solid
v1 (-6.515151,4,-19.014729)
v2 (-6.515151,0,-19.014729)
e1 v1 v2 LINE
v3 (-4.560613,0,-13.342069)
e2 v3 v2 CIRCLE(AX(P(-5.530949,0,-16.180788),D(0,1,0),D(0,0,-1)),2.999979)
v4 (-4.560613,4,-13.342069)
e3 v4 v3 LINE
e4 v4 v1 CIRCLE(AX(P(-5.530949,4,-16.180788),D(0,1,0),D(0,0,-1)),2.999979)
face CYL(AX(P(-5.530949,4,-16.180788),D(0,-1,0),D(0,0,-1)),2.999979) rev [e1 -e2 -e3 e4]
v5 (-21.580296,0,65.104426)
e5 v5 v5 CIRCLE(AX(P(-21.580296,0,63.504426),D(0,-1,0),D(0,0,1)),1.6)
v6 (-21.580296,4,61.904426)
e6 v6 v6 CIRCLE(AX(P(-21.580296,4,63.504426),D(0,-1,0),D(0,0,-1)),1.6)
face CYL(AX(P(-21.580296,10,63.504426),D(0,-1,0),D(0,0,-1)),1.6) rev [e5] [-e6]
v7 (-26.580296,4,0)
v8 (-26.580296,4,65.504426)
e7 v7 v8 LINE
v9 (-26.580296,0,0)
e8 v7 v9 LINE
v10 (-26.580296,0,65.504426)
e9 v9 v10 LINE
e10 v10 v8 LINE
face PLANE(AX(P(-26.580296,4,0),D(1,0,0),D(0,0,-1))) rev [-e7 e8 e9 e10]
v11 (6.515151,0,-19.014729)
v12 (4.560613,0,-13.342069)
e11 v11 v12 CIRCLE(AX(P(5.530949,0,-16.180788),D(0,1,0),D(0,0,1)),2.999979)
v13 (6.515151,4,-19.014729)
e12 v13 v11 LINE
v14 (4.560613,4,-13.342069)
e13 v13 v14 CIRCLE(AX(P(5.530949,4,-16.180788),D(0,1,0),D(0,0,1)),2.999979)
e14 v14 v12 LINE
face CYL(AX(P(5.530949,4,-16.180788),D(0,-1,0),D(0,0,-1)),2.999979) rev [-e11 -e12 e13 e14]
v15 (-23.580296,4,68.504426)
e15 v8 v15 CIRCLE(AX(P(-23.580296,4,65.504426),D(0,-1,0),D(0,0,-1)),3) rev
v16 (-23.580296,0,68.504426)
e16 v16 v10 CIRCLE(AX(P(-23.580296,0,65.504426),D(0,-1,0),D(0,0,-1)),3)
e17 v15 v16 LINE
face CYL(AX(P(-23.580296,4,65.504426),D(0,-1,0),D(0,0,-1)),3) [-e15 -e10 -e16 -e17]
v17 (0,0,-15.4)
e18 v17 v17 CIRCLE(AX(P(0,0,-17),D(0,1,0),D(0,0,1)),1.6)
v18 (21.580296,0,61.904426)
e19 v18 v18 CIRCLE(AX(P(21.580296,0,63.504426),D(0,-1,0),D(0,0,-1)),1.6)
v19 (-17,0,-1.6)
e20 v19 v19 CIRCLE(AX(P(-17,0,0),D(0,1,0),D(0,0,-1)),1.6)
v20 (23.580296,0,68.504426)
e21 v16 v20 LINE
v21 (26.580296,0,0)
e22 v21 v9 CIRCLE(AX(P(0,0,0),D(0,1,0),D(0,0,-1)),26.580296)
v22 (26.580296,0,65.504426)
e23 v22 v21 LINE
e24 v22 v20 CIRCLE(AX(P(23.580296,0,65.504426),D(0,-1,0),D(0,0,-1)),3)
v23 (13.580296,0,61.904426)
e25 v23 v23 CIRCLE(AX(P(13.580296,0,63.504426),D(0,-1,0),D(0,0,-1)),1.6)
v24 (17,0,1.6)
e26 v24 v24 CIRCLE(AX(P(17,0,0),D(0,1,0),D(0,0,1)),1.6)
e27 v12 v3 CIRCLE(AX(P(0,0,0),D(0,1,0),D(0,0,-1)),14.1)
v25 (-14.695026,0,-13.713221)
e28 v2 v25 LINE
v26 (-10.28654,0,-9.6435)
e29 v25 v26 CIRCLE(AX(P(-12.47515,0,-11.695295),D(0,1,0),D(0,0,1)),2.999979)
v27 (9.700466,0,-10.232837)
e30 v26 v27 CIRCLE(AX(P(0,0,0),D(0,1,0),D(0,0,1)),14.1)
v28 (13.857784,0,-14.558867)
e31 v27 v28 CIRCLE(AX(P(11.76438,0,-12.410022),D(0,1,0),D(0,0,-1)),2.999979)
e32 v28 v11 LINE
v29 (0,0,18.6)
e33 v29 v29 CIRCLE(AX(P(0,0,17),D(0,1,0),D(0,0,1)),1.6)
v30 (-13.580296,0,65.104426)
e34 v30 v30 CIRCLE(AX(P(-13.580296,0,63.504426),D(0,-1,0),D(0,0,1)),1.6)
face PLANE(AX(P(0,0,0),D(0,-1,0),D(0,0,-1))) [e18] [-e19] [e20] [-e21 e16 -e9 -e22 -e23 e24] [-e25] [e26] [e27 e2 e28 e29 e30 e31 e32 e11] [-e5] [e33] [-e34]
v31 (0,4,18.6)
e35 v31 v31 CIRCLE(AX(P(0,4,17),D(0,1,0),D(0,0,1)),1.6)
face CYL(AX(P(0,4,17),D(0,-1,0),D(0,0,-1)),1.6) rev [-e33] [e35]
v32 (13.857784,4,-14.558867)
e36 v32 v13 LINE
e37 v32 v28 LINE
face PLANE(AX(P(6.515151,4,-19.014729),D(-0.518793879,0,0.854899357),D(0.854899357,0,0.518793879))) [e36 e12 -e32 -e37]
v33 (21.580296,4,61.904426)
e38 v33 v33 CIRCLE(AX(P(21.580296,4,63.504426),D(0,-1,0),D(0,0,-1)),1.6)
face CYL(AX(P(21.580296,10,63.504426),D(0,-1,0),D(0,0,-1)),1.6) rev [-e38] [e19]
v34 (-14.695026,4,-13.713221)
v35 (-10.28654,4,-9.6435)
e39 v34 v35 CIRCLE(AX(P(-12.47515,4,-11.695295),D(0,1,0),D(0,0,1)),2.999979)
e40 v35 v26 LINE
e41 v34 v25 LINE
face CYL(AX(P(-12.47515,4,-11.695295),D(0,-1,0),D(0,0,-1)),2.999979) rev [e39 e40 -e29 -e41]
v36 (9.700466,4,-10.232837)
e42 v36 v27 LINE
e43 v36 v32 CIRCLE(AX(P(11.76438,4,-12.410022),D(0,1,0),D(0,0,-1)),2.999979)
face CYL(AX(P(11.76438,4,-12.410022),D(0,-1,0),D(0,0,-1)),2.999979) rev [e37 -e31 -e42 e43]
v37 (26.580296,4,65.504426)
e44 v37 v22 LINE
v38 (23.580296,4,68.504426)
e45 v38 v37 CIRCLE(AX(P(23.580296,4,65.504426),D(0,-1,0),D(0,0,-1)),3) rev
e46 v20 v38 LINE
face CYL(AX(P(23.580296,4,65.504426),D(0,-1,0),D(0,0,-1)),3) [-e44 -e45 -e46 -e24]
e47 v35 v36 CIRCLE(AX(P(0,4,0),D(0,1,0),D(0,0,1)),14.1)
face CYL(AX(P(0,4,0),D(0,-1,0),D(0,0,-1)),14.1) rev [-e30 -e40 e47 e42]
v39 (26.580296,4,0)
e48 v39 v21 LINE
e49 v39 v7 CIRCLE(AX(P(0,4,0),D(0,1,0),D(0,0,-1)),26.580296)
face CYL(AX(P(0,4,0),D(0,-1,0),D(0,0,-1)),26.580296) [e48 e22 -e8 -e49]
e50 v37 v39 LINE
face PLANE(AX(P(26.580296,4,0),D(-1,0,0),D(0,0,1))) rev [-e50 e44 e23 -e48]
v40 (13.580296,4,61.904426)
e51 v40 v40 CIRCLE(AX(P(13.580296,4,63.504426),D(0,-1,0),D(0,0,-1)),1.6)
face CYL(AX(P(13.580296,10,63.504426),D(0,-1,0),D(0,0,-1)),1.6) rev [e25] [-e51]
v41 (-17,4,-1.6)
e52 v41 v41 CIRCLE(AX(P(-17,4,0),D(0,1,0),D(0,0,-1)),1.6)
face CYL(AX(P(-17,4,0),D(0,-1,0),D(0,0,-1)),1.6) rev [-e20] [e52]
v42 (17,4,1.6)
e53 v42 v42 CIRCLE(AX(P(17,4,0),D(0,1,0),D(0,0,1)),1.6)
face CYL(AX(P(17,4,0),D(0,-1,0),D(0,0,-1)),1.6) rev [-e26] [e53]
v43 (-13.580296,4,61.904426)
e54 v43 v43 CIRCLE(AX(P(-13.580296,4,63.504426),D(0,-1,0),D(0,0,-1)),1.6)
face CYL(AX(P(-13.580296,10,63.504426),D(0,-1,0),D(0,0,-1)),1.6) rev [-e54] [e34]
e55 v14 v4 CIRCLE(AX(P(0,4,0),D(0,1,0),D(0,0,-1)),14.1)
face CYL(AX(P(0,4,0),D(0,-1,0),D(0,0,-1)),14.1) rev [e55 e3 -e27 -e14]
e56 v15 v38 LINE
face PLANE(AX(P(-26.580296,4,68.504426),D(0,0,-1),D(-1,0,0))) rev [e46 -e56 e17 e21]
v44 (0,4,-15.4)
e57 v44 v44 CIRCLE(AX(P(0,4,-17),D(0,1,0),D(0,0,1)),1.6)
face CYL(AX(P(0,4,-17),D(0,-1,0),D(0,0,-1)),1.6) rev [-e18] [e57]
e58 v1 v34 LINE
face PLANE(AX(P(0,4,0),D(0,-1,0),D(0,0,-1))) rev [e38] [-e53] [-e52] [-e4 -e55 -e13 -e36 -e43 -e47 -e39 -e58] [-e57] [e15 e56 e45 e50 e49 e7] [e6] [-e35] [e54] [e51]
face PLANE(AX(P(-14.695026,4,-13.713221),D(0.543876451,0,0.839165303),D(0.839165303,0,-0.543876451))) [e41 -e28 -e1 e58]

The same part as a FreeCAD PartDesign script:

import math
import FreeCAD as App
import Part
import Sketcher
Q = App.Units.Quantity


def edges_at(feature, points):
    """Names of the edges that pass closest to the given points."""
    edges = feature.Shape.Edges
    near = lambda p: min(range(len(edges)), key=lambda i: edges[i].distToShape(Part.Vertex(*p))[0])
    return sorted({f"Edge{near(p) + 1}" for p in points})

doc = App.newDocument("Part")
body = doc.addObject("PartDesign::Body", "Body")

sketch1 = doc.addObject("Sketcher::SketchObject", "Sketch")
body.addObject(sketch1)
sketch1.AttachmentSupport = (doc.XZ_Plane, [""])
sketch1.MapMode = "FlatFace"
sketch1.addGeometry([
    Part.LineSegment(App.Vector(-26.580296, 0, 0), App.Vector(-26.580296, 68.504426, 0)),
    Part.LineSegment(App.Vector(-26.580296, 68.504426, 0), App.Vector(26.580296, 68.504426, 0)),
    Part.LineSegment(App.Vector(26.580296, 68.504426, 0), App.Vector(26.580296, 0, 0)),
    Part.ArcOfCircle(Part.Circle(App.Vector(0, 0, 0), App.Vector(0, 0, 1), 26.580296), math.radians(180), math.radians(360)),
    Part.Circle(App.Vector(-17, 0, 0), App.Vector(0, 0, 1), 1.6),
    Part.Circle(App.Vector(0, 17, 0), App.Vector(0, 0, 1), 1.6),
    Part.Circle(App.Vector(17, 0, 0), App.Vector(0, 0, 1), 1.6),
    Part.ArcOfCircle(Part.Circle(App.Vector(-12.47515, -11.695295, 0), App.Vector(0, 0, 1), 2.999979), math.radians(43.152002), math.radians(222.271663)),
    Part.LineSegment(App.Vector(-14.695026, -13.713221, 0), App.Vector(-6.515151, -19.014729, 0)),
    Part.ArcOfCircle(Part.Circle(App.Vector(-5.530949, -16.180788, 0), App.Vector(0, 0, 1), 2.999979), math.radians(-109.151642), math.radians(71.128444)),
    Part.ArcOfCircle(Part.Circle(App.Vector(0, 0, 0), App.Vector(0, 0, 1), 14.1), math.radians(-108.871556), math.radians(-71.128444)),
    Part.ArcOfCircle(Part.Circle(App.Vector(5.530949, -16.180788, 0), App.Vector(0, 0, 1), 2.999979), math.radians(108.871556), math.radians(289.151642)),
    Part.LineSegment(App.Vector(6.515151, -19.014729, 0), App.Vector(13.857784, -14.558867, 0)),
    Part.ArcOfCircle(Part.Circle(App.Vector(11.76438, -12.410022, 0), App.Vector(0, 0, 1), 2.999979), math.radians(-45.748752), math.radians(133.470128)),
    Part.ArcOfCircle(Part.Circle(App.Vector(0, 0, 0), App.Vector(0, 0, 1), 14.1), math.radians(-46.529872), math.radians(223.152002)),
    Part.Circle(App.Vector(0, -17, 0), App.Vector(0, 0, 1), 1.6),
], False)
sketch1.addConstraint([
    Sketcher.Constraint("Coincident", 0, 2, 1, 1),
    Sketcher.Constraint("Coincident", 1, 2, 2, 1),
    Sketcher.Constraint("Tangent", 2, 2, 3, 2),
    Sketcher.Constraint("Tangent", 3, 1, 0, 1),
    Sketcher.Constraint("Coincident", 7, 2, 8, 1),
    Sketcher.Constraint("Coincident", 8, 2, 9, 1),
    Sketcher.Constraint("Tangent", 9, 2, 10, 1),
    Sketcher.Constraint("Tangent", 10, 2, 11, 1),
    Sketcher.Constraint("Coincident", 11, 2, 12, 1),
    Sketcher.Constraint("Coincident", 12, 2, 13, 1),
    Sketcher.Constraint("Tangent", 13, 2, 14, 1),
    Sketcher.Constraint("Tangent", 14, 2, 7, 1),
    Sketcher.Constraint("Vertical", 0),
    Sketcher.Constraint("Horizontal", 1),
    Sketcher.Constraint("Vertical", 2),
    Sketcher.Constraint("Coincident", 3, 3, -1, 1),
    Sketcher.Constraint("Coincident", 10, 3, -1, 1),
    Sketcher.Constraint("Coincident", 14, 3, -1, 1),
    Sketcher.Constraint("Equal", 4, 5),
    Sketcher.Constraint("Equal", 5, 6),
    Sketcher.Constraint("Equal", 7, 9),
    Sketcher.Constraint("Equal", 9, 11),
    Sketcher.Constraint("Equal", 11, 13),
    Sketcher.Constraint("Equal", 10, 14),
    Sketcher.Constraint("Equal", 6, 15),
    Sketcher.Constraint("Symmetric", 4, 3, 6, 3, -1, 1),
    Sketcher.Constraint("Symmetric", 5, 3, 15, 3, -1, 1),
    Sketcher.Constraint("Symmetric", 8, 2, 11, 2, -2),
    Sketcher.Constraint("PointOnObject", 4, 3, -1),
    Sketcher.Constraint("PointOnObject", 5, 3, -2),
    Sketcher.Constraint("Diameter", 4, Q("3.2 mm")),
    Sketcher.Constraint("Radius", 10, Q("14.1 mm")),
    Sketcher.Constraint("DistanceX", 4, 3, -1, 1, Q("17 mm")),
    Sketcher.Constraint("DistanceY", -1, 1, 5, 3, Q("17 mm")),
    Sketcher.Constraint("Radius", 7, Q("2.999979 mm")),
    Sketcher.Constraint("DistanceX", 7, 3, 8, 2, Q("5.96 mm")),
    Sketcher.Constraint("Radius", 3, Q("26.580296 mm")),
    Sketcher.Constraint("DistanceY", 14, 2, -1, 1, Q("9.6435 mm")),
    Sketcher.Constraint("DistanceX", 7, 3, 9, 3, Q("6.944201 mm")),
    Sketcher.Constraint("DistanceY", 0, 1, 0, 2, Q("68.504426 mm")),
    Sketcher.Constraint("DistanceX", -1, 1, 13, 3, Q("11.76438 mm")),
    Sketcher.Constraint("DistanceY", 7, 2, -1, 1, Q("13.713221 mm")),
    Sketcher.Constraint("DistanceY", 11, 3, 12, 2, Q("1.621921 mm")),
])
pad1 = doc.addObject("PartDesign::Pad", "Pad")
body.addObject(pad1)
pad1.Profile = sketch1
pad1.Length = 4
pad1.Reversed = True

sketch2 = doc.addObject("Sketcher::SketchObject", "Sketch001")
body.addObject(sketch2)
sketch2.AttachmentSupport = (doc.XZ_Plane, [""])
sketch2.MapMode = "FlatFace"
sketch2.addGeometry([
    Part.Circle(App.Vector(21.6, 63.5, 0), App.Vector(0, 0, 1), 1.6),
    Part.Circle(App.Vector(13.6, 63.5, 0), App.Vector(0, 0, 1), 1.6),
    Part.Circle(App.Vector(-13.6, 63.5, 0), App.Vector(0, 0, 1), 1.6),
    Part.Circle(App.Vector(-21.6, 63.5, 0), App.Vector(0, 0, 1), 1.6),
], False)
sketch2.addConstraint([
    Sketcher.Constraint("Equal", 0, 1),
    Sketcher.Constraint("Equal", 1, 2),
    Sketcher.Constraint("Equal", 2, 3),
    Sketcher.Constraint("Symmetric", 1, 3, 2, 3, -2),
    Sketcher.Constraint("Symmetric", 0, 3, 3, 3, -2),
    Sketcher.Constraint("Horizontal", 0, 3, 1, 3),
    Sketcher.Constraint("Diameter", 0, Q("3.2 mm")),
    Sketcher.Constraint("DistanceX", 1, 3, 0, 3, Q("8 mm")),
    Sketcher.Constraint("DistanceX", 2, 3, 1, 3, Q("27.160592 mm")),
    Sketcher.Constraint("DistanceY", -1, 1, 0, 3, Q("63.504426 mm")),
])
pocket1 = doc.addObject("PartDesign::Pocket", "Pocket")
body.addObject(pocket1)
pocket1.Profile = sketch2
pocket1.Length = 10
doc.recompute()

fillet = doc.addObject("PartDesign::Fillet", "Fillet")
body.addObject(fillet)
fillet.Base = (pocket1, edges_at(pocket1, [(-26.58, 2, 68.504), (26.58, 2, 68.504)]))
fillet.Radius = 3

doc.recompute()
